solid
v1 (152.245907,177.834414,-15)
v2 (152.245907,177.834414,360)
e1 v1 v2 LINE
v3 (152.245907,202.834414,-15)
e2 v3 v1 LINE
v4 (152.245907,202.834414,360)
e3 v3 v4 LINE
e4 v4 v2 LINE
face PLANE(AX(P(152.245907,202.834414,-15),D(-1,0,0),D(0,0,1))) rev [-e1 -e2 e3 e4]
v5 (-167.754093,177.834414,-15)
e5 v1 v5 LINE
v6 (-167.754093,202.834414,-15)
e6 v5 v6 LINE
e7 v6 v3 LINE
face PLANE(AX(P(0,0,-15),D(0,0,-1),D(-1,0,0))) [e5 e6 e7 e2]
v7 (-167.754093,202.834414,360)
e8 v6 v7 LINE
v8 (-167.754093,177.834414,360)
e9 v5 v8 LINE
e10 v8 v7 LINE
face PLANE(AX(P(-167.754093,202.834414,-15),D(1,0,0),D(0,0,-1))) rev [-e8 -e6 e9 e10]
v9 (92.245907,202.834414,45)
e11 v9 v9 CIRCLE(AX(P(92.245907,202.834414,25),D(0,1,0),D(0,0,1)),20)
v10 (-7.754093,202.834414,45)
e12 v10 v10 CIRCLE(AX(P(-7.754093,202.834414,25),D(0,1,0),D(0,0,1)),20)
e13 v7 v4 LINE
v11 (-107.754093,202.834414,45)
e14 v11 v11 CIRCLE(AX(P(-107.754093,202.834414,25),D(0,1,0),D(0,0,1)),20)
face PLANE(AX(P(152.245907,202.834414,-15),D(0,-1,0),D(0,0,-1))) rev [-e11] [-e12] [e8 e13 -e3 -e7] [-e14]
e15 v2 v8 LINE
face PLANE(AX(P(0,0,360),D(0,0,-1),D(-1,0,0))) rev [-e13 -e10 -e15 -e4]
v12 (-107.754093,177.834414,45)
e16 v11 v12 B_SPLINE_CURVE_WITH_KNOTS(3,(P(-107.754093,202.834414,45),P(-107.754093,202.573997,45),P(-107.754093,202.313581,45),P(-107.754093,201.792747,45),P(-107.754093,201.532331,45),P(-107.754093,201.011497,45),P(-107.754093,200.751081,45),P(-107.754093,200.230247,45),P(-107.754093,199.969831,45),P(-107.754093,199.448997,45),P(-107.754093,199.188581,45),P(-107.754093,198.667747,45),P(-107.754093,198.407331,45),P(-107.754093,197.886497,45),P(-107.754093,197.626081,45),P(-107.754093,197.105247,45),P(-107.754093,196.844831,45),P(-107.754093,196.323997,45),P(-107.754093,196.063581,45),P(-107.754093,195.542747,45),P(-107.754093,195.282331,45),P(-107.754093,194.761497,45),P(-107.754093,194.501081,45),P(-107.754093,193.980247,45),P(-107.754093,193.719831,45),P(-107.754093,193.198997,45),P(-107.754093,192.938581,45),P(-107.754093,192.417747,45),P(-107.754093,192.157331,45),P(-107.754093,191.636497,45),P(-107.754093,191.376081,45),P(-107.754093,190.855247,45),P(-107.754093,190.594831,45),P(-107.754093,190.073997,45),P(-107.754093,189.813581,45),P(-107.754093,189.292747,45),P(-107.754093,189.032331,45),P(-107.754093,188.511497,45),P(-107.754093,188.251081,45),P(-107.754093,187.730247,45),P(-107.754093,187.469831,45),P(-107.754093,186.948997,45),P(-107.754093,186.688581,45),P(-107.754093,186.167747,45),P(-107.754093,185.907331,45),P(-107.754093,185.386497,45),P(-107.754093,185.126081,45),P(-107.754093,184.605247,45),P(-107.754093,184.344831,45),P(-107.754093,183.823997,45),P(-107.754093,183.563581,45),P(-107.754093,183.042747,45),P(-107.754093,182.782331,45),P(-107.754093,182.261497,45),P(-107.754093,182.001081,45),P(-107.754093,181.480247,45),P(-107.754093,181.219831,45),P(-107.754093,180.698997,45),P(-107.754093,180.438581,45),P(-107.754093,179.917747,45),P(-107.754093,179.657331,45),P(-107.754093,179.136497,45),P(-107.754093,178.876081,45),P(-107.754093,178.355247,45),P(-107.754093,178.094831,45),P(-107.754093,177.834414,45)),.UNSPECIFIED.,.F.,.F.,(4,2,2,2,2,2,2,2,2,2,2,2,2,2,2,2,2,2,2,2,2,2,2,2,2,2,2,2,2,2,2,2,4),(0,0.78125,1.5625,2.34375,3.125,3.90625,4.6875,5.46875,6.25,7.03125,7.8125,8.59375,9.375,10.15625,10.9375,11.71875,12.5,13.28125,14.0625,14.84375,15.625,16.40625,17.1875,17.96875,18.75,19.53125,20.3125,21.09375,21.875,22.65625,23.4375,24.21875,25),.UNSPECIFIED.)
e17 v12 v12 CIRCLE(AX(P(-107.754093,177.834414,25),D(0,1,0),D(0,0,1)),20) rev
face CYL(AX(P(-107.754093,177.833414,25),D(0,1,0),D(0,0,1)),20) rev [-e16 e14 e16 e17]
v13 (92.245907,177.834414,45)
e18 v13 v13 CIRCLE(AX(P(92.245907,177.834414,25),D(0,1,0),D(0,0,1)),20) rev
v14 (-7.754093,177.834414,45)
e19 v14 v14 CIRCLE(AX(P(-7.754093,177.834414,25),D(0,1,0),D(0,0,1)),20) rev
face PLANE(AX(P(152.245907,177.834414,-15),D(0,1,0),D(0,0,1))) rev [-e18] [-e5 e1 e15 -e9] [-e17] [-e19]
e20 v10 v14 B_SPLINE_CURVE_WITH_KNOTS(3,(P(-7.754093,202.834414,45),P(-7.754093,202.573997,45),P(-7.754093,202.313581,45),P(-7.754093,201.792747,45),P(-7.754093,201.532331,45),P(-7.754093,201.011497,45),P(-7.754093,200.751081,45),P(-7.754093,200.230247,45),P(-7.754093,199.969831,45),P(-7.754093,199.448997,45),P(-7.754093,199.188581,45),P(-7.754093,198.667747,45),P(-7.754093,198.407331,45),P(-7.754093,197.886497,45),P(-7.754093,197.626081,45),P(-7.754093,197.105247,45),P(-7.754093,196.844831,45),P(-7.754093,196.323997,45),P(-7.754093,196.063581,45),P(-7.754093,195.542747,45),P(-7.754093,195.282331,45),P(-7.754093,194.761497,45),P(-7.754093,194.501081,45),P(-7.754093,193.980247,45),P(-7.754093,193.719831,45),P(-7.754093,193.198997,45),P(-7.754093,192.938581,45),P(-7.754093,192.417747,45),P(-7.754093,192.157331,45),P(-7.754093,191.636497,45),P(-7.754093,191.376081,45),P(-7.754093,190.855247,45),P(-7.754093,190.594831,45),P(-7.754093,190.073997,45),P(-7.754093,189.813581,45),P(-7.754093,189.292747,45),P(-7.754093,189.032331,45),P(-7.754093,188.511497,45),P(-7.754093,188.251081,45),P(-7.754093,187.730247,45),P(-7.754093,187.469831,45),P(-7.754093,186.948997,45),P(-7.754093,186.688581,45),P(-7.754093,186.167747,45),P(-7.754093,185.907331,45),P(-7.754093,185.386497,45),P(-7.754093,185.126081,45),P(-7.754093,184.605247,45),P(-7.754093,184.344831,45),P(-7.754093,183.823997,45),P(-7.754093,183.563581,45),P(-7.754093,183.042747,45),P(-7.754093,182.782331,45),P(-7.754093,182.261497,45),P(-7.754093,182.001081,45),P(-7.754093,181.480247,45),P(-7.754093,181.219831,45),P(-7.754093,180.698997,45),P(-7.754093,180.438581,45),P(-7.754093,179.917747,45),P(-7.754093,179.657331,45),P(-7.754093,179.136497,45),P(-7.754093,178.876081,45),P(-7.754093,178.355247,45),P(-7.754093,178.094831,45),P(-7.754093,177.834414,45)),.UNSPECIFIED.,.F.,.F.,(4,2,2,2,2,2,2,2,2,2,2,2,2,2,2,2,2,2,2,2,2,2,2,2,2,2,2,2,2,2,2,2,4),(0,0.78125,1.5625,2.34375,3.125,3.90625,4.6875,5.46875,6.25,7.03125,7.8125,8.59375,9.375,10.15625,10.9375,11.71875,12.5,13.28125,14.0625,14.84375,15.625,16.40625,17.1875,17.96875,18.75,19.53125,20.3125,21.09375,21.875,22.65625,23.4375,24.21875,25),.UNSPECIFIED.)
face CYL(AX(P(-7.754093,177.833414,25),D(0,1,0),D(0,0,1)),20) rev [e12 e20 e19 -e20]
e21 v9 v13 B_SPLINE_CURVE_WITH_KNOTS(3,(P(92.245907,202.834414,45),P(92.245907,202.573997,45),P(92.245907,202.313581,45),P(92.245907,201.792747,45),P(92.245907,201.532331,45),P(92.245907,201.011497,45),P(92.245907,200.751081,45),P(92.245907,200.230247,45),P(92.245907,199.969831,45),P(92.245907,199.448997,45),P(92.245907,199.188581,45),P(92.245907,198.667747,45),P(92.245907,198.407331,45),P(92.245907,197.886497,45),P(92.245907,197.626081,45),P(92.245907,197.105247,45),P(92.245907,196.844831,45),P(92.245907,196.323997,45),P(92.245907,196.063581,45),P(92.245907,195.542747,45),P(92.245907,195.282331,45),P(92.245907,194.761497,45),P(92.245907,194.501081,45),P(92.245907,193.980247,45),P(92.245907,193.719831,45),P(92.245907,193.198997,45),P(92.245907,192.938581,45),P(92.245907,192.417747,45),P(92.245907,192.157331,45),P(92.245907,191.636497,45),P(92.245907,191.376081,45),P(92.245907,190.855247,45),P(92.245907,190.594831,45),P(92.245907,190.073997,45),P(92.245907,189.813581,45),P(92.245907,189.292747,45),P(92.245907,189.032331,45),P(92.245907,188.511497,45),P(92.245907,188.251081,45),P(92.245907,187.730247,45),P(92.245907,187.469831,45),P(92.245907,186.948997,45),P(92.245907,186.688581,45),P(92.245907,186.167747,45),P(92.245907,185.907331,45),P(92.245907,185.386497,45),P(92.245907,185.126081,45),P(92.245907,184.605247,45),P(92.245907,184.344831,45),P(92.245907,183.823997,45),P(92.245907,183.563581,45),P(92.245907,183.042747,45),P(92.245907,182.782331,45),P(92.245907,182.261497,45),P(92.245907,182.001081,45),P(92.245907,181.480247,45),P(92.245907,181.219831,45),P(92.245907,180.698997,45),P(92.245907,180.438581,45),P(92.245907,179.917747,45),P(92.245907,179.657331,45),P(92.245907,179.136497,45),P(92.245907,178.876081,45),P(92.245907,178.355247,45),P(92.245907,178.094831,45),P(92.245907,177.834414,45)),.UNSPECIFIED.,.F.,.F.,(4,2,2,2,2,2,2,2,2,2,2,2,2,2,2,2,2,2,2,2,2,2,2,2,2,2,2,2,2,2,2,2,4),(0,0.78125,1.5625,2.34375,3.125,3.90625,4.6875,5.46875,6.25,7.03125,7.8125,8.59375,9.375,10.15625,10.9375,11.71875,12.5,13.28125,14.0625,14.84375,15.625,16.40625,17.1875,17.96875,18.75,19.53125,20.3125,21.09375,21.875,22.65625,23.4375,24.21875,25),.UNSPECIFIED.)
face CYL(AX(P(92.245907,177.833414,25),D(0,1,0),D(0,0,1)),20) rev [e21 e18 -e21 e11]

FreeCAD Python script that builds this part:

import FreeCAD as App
import Part
import Sketcher

V = App.Vector
Q = App.Units.Quantity

doc = App.newDocument("Part")
params = doc.addObject("Spreadsheet::Sheet", "Params")
for row, (alias, value) in enumerate([
    ("sketch1_width", "320 mm"),
    ("sketch1_height", "25 mm"),
    ("pad1_length", "375 mm"),
    ("sketch2_diameter", "40 mm"),
    ("sketch3_diameter", "40 mm"),
    ("sketch4_diameter", "40 mm"),
], start=1):
    params.set(f"A{row}", alias)
    params.set(f"B{row}", "=" + value)
    params.setAlias(f"B{row}", alias)

body = doc.addObject("PartDesign::Body", "Body")

# Sketch on XY plane
sketch1 = doc.addObject("Sketcher::SketchObject", "Sketch")
body.addObject(sketch1)
sketch1.AttachmentSupport = (doc.XY_Plane, [""])
sketch1.MapMode = "FlatFace"
sketch1.AttachmentOffset = App.Placement(V(0, 0, 360), App.Rotation())
sketch1.addGeometry([
    Part.LineSegment(V(152, 203, 0), V(152, 178, 0)),
    Part.LineSegment(V(152, 178, 0), V(-168, 178, 0)),
    Part.LineSegment(V(-168, 178, 0), V(-168, 203, 0)),
    Part.LineSegment(V(-168, 203, 0), V(152, 203, 0)),
], False)
sketch1.addConstraint([
    Sketcher.Constraint("Coincident", 0, 2, 1, 1),
    Sketcher.Constraint("Coincident", 1, 2, 2, 1),
    Sketcher.Constraint("Coincident", 2, 2, 3, 1),
    Sketcher.Constraint("Coincident", 3, 2, 0, 1),
    Sketcher.Constraint("Vertical", 0),
    Sketcher.Constraint("Horizontal", 1),
    Sketcher.Constraint("Vertical", 2),
    Sketcher.Constraint("Horizontal", 3),
    Sketcher.Constraint("DistanceX", 1, 2, 1, 1, Q("320 mm")),
    Sketcher.Constraint("DistanceY", 0, 2, 0, 1, Q("25 mm")),
    Sketcher.Constraint("DistanceX", -1, 1, 0, 2, Q("152.245907 mm")),
    Sketcher.Constraint("DistanceY", -1, 1, 0, 2, Q("177.834414 mm")),
])
sketch1.setExpression("Constraints[8]", "Params.sketch1_width")
sketch1.setExpression("Constraints[9]", "Params.sketch1_height")
pad1 = doc.addObject("PartDesign::Pad", "Pad")
body.addObject(pad1)
pad1.Profile = sketch1
pad1.setExpression("Length", "Params.pad1_length")
pad1.Reversed = True

# Sketch on XZ plane
sketch2 = doc.addObject("Sketcher::SketchObject", "Sketch001")
body.addObject(sketch2)
sketch2.AttachmentSupport = (doc.XZ_Plane, [""])
sketch2.MapMode = "FlatFace"
sketch2.AttachmentOffset = App.Placement(V(0, 0, -202.834414), App.Rotation())
sketch2.addGeometry(Part.Circle(V(-108, 25, 0), V(0, 0, 1), 20), False)
sketch2.addConstraint([
    Sketcher.Constraint("Diameter", 0, Q("40 mm")),
    Sketcher.Constraint("DistanceY", -1, 1, 0, 3, Q("25 mm")),
    Sketcher.Constraint("DistanceX", 0, 3, -1, 1, Q("107.754093 mm")),
])
sketch2.setExpression("Constraints[0]", "Params.sketch2_diameter")
pocket1 = doc.addObject("PartDesign::Pocket", "Pocket")
body.addObject(pocket1)
pocket1.Profile = sketch2
pocket1.Type = "UpToFirst"
pocket1.Reversed = True

# Sketch on XZ plane
sketch3 = doc.addObject("Sketcher::SketchObject", "Sketch002")
body.addObject(sketch3)
sketch3.AttachmentSupport = (doc.XZ_Plane, [""])
sketch3.MapMode = "FlatFace"
sketch3.AttachmentOffset = App.Placement(V(0, 0, -202.834414), App.Rotation())
sketch3.addGeometry(Part.Circle(V(-8, 25, 0), V(0, 0, 1), 20), False)
sketch3.addConstraint([
    Sketcher.Constraint("Diameter", 0, Q("40 mm")),
    Sketcher.Constraint("DistanceY", -1, 1, 0, 3, Q("25 mm")),
    Sketcher.Constraint("DistanceX", 0, 3, -1, 1, Q("7.754093 mm")),
])
sketch3.setExpression("Constraints[0]", "Params.sketch3_diameter")
pocket2 = doc.addObject("PartDesign::Pocket", "Pocket001")
body.addObject(pocket2)
pocket2.Profile = sketch3
pocket2.Type = "UpToFirst"
pocket2.Reversed = True

# Sketch on XZ plane
sketch4 = doc.addObject("Sketcher::SketchObject", "Sketch003")
body.addObject(sketch4)
sketch4.AttachmentSupport = (doc.XZ_Plane, [""])
sketch4.MapMode = "FlatFace"
sketch4.AttachmentOffset = App.Placement(V(0, 0, -202.834414), App.Rotation())
sketch4.addGeometry(Part.Circle(V(92, 25, 0), V(0, 0, 1), 20), False)
sketch4.addConstraint([
    Sketcher.Constraint("Diameter", 0, Q("40 mm")),
    Sketcher.Constraint("DistanceY", -1, 1, 0, 3, Q("25 mm")),
    Sketcher.Constraint("DistanceX", -1, 1, 0, 3, Q("92.245907 mm")),
])
sketch4.setExpression("Constraints[0]", "Params.sketch4_diameter")
pocket3 = doc.addObject("PartDesign::Pocket", "Pocket002")
body.addObject(pocket3)
pocket3.Profile = sketch4
pocket3.Type = "UpToFirst"
pocket3.Reversed = True

doc.recompute()
